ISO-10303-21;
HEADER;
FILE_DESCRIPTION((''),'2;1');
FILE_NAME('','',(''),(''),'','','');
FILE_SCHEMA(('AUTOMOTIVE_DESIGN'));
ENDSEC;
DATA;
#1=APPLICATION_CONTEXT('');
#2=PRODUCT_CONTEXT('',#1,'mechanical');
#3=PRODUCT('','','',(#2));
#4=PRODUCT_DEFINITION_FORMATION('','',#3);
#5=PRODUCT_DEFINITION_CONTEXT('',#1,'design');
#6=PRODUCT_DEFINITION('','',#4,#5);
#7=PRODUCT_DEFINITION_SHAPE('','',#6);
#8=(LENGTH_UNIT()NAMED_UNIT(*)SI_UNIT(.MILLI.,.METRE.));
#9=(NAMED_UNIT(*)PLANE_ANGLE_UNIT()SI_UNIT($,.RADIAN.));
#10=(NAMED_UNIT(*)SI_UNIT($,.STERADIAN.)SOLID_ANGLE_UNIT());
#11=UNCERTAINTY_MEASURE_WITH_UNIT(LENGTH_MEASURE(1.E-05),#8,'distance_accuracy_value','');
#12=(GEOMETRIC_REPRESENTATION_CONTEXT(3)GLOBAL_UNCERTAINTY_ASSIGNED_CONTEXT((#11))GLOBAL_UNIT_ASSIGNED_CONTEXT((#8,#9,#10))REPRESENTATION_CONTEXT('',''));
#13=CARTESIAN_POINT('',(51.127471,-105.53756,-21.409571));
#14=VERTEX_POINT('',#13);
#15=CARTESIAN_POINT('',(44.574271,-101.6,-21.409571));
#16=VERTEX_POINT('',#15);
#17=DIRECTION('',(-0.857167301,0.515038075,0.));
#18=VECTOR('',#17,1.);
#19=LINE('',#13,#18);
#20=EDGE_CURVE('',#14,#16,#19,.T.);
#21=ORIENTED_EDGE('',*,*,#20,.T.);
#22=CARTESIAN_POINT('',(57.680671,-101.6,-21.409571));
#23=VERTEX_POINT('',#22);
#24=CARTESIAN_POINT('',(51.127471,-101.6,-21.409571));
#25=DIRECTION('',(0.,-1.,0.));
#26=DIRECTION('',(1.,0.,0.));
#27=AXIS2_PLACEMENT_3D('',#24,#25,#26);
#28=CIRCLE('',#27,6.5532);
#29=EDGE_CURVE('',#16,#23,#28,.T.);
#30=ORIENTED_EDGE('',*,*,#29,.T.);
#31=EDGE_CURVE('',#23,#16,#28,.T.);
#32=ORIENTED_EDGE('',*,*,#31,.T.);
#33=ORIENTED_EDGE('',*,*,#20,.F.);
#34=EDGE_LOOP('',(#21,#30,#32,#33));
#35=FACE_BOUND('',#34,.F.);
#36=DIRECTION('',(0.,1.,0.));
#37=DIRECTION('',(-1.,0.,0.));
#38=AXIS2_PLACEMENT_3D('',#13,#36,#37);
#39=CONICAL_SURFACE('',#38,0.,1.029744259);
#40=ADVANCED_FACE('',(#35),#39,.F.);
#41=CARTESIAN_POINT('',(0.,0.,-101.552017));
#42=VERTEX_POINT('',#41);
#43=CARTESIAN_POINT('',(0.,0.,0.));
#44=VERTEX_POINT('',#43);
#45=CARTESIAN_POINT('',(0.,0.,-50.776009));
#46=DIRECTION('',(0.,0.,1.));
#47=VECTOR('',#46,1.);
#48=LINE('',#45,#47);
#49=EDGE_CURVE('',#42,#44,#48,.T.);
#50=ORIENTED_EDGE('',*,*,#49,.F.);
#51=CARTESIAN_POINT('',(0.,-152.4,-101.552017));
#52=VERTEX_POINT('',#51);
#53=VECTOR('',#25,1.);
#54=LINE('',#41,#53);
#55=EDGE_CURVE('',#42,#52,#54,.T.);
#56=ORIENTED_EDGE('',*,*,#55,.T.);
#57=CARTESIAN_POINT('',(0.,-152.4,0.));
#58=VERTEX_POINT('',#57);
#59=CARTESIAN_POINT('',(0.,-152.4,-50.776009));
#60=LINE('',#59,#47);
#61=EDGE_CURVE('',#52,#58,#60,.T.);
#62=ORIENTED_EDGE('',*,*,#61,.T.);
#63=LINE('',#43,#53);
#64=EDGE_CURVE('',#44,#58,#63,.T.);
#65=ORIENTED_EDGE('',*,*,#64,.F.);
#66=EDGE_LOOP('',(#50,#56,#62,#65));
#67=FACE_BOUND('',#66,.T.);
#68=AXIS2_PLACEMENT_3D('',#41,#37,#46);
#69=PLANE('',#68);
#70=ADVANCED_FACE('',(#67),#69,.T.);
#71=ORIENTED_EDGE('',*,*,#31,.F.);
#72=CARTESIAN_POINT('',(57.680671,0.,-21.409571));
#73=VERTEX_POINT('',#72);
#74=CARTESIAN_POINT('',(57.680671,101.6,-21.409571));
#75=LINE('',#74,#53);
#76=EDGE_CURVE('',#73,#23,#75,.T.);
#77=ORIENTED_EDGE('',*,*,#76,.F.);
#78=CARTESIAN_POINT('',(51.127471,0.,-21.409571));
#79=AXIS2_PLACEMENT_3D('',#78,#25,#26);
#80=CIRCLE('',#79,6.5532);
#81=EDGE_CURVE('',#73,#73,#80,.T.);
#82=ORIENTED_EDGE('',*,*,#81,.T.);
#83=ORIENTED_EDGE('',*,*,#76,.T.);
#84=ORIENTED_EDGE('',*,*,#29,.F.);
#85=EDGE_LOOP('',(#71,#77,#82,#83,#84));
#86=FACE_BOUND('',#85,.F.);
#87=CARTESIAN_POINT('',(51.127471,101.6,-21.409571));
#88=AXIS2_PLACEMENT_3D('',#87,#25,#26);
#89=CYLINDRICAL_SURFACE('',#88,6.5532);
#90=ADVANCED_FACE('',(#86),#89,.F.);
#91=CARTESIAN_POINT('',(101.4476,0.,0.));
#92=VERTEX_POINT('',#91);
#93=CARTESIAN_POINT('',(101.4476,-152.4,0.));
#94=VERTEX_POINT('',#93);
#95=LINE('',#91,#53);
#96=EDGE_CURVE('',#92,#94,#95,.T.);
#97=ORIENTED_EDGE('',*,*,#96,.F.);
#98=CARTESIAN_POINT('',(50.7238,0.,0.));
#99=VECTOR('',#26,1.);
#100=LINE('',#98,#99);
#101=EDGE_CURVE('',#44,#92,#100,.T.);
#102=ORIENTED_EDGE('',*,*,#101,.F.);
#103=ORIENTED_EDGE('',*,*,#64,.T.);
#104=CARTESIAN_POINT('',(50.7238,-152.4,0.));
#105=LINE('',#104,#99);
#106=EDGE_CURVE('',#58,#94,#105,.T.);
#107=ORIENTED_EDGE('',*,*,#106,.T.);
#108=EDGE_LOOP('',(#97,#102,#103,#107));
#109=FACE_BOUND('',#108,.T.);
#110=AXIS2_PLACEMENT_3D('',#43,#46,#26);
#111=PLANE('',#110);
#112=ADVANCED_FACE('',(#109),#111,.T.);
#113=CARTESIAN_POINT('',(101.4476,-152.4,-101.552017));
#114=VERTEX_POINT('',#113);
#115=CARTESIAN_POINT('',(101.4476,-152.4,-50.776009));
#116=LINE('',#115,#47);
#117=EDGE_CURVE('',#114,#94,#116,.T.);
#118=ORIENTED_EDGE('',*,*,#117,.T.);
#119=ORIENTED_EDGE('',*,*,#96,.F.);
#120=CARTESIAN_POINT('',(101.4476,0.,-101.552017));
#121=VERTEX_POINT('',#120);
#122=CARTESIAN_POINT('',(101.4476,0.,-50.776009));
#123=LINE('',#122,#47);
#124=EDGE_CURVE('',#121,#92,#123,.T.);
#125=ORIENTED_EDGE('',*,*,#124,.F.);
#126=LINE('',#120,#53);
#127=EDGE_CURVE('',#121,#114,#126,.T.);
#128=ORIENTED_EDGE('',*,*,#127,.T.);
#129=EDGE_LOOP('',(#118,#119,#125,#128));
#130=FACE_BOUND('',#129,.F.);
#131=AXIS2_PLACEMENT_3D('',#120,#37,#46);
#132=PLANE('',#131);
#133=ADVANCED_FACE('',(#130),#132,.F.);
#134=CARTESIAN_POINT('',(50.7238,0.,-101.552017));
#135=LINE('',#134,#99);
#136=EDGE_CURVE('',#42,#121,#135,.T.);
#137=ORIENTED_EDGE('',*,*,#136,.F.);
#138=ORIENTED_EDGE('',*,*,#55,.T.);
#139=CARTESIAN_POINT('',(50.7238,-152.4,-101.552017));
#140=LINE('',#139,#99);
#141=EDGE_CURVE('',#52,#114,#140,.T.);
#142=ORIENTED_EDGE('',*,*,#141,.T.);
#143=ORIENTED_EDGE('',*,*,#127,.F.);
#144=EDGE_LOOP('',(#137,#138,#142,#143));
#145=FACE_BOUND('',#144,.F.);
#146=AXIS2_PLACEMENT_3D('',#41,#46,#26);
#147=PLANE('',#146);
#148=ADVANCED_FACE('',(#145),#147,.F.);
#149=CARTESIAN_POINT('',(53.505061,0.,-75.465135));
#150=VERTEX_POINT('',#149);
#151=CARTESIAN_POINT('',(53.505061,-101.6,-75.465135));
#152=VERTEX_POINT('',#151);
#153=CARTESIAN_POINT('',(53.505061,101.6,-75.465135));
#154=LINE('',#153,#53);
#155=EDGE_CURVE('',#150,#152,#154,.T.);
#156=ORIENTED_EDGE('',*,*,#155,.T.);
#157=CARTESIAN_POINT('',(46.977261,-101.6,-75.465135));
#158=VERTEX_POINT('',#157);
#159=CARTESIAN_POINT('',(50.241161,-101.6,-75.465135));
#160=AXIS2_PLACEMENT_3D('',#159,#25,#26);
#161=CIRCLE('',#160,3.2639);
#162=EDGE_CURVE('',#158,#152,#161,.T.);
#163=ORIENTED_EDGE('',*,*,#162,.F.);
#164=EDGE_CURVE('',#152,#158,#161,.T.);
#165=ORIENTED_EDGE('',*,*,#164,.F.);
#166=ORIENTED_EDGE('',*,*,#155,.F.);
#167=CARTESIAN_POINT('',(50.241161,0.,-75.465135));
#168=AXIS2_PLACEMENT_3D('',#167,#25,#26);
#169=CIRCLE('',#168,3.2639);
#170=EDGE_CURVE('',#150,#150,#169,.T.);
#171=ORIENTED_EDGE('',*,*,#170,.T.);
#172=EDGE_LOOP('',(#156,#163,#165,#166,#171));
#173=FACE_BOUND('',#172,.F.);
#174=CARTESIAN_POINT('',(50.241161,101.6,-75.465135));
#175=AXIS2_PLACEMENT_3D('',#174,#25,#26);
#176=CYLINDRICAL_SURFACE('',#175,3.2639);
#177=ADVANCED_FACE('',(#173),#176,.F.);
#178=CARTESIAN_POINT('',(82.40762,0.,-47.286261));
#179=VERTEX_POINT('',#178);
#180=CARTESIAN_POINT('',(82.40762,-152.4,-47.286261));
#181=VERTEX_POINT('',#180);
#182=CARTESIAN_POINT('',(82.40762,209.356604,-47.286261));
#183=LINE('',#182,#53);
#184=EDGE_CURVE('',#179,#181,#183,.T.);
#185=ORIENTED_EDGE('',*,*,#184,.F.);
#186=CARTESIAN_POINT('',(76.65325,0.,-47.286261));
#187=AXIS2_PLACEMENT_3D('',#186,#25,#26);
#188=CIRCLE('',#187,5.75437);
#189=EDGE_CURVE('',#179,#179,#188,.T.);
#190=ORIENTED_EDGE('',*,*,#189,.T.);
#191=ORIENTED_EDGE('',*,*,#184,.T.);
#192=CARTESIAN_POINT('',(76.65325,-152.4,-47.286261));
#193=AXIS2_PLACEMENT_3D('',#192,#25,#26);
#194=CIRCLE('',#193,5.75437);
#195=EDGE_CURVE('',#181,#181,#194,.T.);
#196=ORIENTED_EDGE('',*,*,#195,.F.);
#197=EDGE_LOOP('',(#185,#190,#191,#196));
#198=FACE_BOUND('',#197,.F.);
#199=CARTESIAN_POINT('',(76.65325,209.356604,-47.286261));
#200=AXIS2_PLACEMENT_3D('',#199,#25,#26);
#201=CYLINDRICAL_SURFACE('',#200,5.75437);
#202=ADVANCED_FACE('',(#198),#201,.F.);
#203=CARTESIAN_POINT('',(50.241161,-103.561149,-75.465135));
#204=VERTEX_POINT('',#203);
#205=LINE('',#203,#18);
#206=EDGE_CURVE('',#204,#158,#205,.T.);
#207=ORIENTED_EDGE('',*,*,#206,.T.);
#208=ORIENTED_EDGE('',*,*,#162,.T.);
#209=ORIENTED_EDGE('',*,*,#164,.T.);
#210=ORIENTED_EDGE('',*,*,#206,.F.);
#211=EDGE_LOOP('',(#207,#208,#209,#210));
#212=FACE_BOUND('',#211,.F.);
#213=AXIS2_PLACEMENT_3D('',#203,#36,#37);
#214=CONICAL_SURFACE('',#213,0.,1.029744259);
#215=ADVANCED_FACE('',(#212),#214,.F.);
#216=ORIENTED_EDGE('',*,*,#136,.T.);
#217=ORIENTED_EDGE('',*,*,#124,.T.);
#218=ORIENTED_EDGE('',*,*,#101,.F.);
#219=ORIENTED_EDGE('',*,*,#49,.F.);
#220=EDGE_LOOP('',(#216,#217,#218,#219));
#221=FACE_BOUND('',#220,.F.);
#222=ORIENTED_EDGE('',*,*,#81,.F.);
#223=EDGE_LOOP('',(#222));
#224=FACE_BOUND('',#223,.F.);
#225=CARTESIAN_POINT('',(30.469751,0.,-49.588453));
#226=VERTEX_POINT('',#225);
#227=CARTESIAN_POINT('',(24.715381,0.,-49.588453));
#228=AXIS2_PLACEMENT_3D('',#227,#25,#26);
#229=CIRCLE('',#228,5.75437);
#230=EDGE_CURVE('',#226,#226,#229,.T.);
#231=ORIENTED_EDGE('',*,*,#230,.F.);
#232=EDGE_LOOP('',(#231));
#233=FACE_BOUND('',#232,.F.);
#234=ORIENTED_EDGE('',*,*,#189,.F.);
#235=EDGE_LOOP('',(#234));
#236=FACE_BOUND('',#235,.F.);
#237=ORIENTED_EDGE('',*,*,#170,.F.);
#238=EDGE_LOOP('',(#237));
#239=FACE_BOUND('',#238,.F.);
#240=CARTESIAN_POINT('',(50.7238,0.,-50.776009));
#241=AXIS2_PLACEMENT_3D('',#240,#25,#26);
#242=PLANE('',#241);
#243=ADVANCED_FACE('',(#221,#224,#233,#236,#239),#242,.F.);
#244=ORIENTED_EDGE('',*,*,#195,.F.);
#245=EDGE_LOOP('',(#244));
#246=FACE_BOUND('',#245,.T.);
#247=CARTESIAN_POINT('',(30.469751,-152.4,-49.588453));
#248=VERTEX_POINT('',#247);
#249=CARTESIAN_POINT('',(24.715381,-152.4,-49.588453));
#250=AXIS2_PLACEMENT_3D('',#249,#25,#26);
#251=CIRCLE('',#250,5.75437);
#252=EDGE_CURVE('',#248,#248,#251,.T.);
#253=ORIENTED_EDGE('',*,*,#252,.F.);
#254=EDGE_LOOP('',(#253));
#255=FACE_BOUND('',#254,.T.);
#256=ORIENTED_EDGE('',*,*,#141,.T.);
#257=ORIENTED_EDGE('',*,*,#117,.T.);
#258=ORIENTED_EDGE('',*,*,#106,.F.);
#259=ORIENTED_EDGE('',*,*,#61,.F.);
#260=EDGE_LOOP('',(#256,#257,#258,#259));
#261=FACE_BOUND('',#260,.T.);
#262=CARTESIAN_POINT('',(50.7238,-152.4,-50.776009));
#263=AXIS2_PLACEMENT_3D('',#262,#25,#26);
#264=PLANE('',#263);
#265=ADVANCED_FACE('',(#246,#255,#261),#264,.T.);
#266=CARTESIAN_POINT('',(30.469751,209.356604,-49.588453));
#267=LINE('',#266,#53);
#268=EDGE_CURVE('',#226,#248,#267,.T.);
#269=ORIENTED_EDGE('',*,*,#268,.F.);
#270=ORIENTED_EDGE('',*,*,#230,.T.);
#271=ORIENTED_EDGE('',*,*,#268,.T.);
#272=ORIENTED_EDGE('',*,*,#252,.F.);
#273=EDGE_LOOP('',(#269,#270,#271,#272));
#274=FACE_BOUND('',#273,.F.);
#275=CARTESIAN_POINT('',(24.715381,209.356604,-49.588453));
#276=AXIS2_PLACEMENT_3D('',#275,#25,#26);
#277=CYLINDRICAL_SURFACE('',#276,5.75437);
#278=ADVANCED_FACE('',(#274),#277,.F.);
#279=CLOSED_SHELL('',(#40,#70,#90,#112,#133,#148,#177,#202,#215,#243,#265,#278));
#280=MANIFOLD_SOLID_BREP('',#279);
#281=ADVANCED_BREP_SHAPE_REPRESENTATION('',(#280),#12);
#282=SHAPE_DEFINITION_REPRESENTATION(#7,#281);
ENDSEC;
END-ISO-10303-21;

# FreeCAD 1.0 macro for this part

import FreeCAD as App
import Part
import Sketcher
Q = App.Units.Quantity


def add_polygon(sketch, points):
    """Adds a closed chain of lines whose ends are joined by coincident constraints."""
    first, n = sketch.GeometryCount, len(points)
    for a, b in zip(points, points[1:] + points[:1]):
        sketch.addGeometry(Part.LineSegment(App.Vector(*a, 0), App.Vector(*b, 0)), False)
    for i in range(n):
        sketch.addConstraint(Sketcher.Constraint("Coincident", first + i, 2, first + (i + 1) % n, 1))

doc = App.newDocument("Part")
body = doc.addObject("PartDesign::Body", "Body")

sketch1 = body.newObject("Sketcher::SketchObject", "Sketch")
sketch1.AttachmentSupport = (doc.getObject("XZ_Plane"), [""])
sketch1.MapMode = "FlatFace"
add_polygon(sketch1, [(0, 0), (0, -102), (101, -102), (101, 0)])
sketch1.addConstraint([
    Sketcher.Constraint("Vertical", 0),
    Sketcher.Constraint("Horizontal", 1),
    Sketcher.Constraint("Vertical", 2),
    Sketcher.Constraint("Horizontal", 3),
    Sketcher.Constraint("Coincident", 3, 2, -1, 1),
    Sketcher.Constraint("DistanceX", 1, 1, 1, 2, Q("3.994 in")),
    Sketcher.Constraint("DistanceY", 0, 2, 0, 1, Q("101.552017 mm")),
])
pad1 = body.newObject("PartDesign::Pad", "Pad")
pad1.Profile = sketch1
pad1.Length = Q("6 in")

sketch2 = body.newObject("Sketcher::SketchObject", "Sketch001")
sketch2.AttachmentSupport = (doc.getObject("XZ_Plane"), [""])
sketch2.MapMode = "FlatFace"
sketch2.addGeometry([
    Part.Circle(App.Vector(77, -47, 0), App.Vector(0, 0, 1), 6),
    Part.Circle(App.Vector(25, -50, 0), App.Vector(0, 0, 1), 6),
], False)
sketch2.addConstraint([
    Sketcher.Constraint("Equal", 0, 1),
    Sketcher.Constraint("Diameter", 0, Q("0.4531 in")),
    Sketcher.Constraint("DistanceX", -1, 1, 0, 3, Q("76.65325 mm")),
    Sketcher.Constraint("DistanceY", 0, 3, -1, 1, Q("47.286261 mm")),
    Sketcher.Constraint("DistanceX", -1, 1, 1, 3, Q("24.715381 mm")),
    Sketcher.Constraint("DistanceY", 1, 3, -1, 1, Q("49.588453 mm")),
])
doc.recompute()
hole = body.newObject("PartDesign::Hole", "Hole")
hole.Profile = sketch2
hole.ThreadType = "None"
hole.Diameter = Q("0.4531 in")
hole.DepthType = "ThroughAll"
hole.Reversed = True

sketch3 = body.newObject("Sketcher::SketchObject", "Sketch002")
sketch3.AttachmentSupport = (doc.getObject("XZ_Plane"), [""])
sketch3.MapMode = "FlatFace"
sketch3.addGeometry(Part.Circle(App.Vector(51, -21, 0), App.Vector(0, 0, 1), 7), False)
sketch3.addConstraint([
    Sketcher.Constraint("Diameter", 0, Q("0.516 in")),
    Sketcher.Constraint("DistanceX", -1, 1, 0, 3, Q("51.127471 mm")),
    Sketcher.Constraint("DistanceY", 0, 3, -1, 1, Q("21.409571 mm")),
])
doc.recompute()
hole2 = body.newObject("PartDesign::Hole", "Hole001")
hole2.Profile = sketch3
hole2.ThreadType = "None"
hole2.Diameter = Q("0.516 in")
hole2.DepthType = "Dimension"
hole2.Depth = Q("4 in")
hole2.DrillPoint = "Angled"
hole2.DrillPointAngle = 118
hole2.Reversed = True

sketch4 = body.newObject("Sketcher::SketchObject", "Sketch003")
sketch4.AttachmentSupport = (doc.getObject("XZ_Plane"), [""])
sketch4.MapMode = "FlatFace"
sketch4.addGeometry(Part.Circle(App.Vector(50.2, -75.5, 0), App.Vector(0, 0, 1), 3.3), False)
sketch4.addConstraint([
    Sketcher.Constraint("Diameter", 0, Q("0.257 in")),
    Sketcher.Constraint("DistanceX", -1, 1, 0, 3, Q("50.241161 mm")),
    Sketcher.Constraint("DistanceY", 0, 3, -1, 1, Q("75.465135 mm")),
])
doc.recompute()
hole3 = body.newObject("PartDesign::Hole", "Hole002")
hole3.Profile = sketch4
hole3.ThreadType = "None"
hole3.Diameter = Q("0.257 in")
hole3.DepthType = "Dimension"
hole3.Depth = Q("4 in")
hole3.DrillPoint = "Angled"
hole3.DrillPointAngle = 118
hole3.Reversed = True

doc.recompute()
